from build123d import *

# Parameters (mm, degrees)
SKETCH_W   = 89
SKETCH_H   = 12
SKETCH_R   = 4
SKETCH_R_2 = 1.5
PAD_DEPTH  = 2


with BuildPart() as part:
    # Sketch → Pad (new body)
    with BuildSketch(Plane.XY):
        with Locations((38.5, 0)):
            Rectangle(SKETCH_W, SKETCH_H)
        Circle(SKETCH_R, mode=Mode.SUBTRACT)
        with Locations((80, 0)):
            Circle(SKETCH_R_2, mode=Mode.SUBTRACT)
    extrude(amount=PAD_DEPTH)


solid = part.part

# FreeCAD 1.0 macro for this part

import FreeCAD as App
import Part
import Sketcher
Q = App.Units.Quantity

doc = App.newDocument("Part")
body = doc.addObject("PartDesign::Body", "Body")

sketch1 = body.newObject("Sketcher::SketchObject", "Sketch")
sketch1.AttachmentSupport = (doc.getObject("XY_Plane"), [""])
sketch1.MapMode = "FlatFace"
sketch1.addGeometry(Part.LineSegment(App.Vector(-6, 6, 0), App.Vector(-6, -6, 0)), False)
sketch1.addGeometry(Part.LineSegment(App.Vector(-6, -6, 0), App.Vector(83, -6, 0)), False)
sketch1.addGeometry(Part.LineSegment(App.Vector(83, -6, 0), App.Vector(83, 6, 0)), False)
sketch1.addGeometry(Part.LineSegment(App.Vector(83, 6, 0), App.Vector(-6, 6, 0)), False)
sketch1.addGeometry(Part.Circle(App.Vector(0, 0, 0), App.Vector(0, 0, 1), 4), False)
sketch1.addGeometry(Part.Circle(App.Vector(80, 0, 0), App.Vector(0, 0, 1), 1.5), False)
sketch1.addConstraint(Sketcher.Constraint("Coincident", 0, 2, 1, 1))
sketch1.addConstraint(Sketcher.Constraint("Coincident", 1, 2, 2, 1))
sketch1.addConstraint(Sketcher.Constraint("Coincident", 2, 2, 3, 1))
sketch1.addConstraint(Sketcher.Constraint("Coincident", 3, 2, 0, 1))
sketch1.addConstraint(Sketcher.Constraint("Vertical", 0))
sketch1.addConstraint(Sketcher.Constraint("Horizontal", 1))
sketch1.addConstraint(Sketcher.Constraint("Vertical", 2))
sketch1.addConstraint(Sketcher.Constraint("Horizontal", 3))
sketch1.addConstraint(Sketcher.Constraint("Coincident", 4, 3, -1, 1))
sketch1.addConstraint(Sketcher.Constraint("PointOnObject", 5, 3, -1))
sketch1.addConstraint(Sketcher.Constraint("Diameter", 4, Q("8 mm")))
sketch1.addConstraint(Sketcher.Constraint("Diameter", 5, Q("3 mm")))
sketch1.addConstraint(Sketcher.Constraint("DistanceX", 1, 1, 1, 2, Q("89 mm")))
sketch1.addConstraint(Sketcher.Constraint("DistanceY", 0, 2, 0, 1, Q("12 mm")))
sketch1.addConstraint(Sketcher.Constraint("DistanceX", -1, 1, 5, 3, Q("80 mm")))
sketch1.addConstraint(Sketcher.Constraint("DistanceX", 0, 2, -1, 1, Q("6 mm")))
sketch1.addConstraint(Sketcher.Constraint("DistanceY", 0, 2, -1, 1, Q("6 mm")))
pad1 = body.newObject("PartDesign::Pad", "Pad")
pad1.Profile = sketch1
pad1.Length = 2

doc.recompute()
